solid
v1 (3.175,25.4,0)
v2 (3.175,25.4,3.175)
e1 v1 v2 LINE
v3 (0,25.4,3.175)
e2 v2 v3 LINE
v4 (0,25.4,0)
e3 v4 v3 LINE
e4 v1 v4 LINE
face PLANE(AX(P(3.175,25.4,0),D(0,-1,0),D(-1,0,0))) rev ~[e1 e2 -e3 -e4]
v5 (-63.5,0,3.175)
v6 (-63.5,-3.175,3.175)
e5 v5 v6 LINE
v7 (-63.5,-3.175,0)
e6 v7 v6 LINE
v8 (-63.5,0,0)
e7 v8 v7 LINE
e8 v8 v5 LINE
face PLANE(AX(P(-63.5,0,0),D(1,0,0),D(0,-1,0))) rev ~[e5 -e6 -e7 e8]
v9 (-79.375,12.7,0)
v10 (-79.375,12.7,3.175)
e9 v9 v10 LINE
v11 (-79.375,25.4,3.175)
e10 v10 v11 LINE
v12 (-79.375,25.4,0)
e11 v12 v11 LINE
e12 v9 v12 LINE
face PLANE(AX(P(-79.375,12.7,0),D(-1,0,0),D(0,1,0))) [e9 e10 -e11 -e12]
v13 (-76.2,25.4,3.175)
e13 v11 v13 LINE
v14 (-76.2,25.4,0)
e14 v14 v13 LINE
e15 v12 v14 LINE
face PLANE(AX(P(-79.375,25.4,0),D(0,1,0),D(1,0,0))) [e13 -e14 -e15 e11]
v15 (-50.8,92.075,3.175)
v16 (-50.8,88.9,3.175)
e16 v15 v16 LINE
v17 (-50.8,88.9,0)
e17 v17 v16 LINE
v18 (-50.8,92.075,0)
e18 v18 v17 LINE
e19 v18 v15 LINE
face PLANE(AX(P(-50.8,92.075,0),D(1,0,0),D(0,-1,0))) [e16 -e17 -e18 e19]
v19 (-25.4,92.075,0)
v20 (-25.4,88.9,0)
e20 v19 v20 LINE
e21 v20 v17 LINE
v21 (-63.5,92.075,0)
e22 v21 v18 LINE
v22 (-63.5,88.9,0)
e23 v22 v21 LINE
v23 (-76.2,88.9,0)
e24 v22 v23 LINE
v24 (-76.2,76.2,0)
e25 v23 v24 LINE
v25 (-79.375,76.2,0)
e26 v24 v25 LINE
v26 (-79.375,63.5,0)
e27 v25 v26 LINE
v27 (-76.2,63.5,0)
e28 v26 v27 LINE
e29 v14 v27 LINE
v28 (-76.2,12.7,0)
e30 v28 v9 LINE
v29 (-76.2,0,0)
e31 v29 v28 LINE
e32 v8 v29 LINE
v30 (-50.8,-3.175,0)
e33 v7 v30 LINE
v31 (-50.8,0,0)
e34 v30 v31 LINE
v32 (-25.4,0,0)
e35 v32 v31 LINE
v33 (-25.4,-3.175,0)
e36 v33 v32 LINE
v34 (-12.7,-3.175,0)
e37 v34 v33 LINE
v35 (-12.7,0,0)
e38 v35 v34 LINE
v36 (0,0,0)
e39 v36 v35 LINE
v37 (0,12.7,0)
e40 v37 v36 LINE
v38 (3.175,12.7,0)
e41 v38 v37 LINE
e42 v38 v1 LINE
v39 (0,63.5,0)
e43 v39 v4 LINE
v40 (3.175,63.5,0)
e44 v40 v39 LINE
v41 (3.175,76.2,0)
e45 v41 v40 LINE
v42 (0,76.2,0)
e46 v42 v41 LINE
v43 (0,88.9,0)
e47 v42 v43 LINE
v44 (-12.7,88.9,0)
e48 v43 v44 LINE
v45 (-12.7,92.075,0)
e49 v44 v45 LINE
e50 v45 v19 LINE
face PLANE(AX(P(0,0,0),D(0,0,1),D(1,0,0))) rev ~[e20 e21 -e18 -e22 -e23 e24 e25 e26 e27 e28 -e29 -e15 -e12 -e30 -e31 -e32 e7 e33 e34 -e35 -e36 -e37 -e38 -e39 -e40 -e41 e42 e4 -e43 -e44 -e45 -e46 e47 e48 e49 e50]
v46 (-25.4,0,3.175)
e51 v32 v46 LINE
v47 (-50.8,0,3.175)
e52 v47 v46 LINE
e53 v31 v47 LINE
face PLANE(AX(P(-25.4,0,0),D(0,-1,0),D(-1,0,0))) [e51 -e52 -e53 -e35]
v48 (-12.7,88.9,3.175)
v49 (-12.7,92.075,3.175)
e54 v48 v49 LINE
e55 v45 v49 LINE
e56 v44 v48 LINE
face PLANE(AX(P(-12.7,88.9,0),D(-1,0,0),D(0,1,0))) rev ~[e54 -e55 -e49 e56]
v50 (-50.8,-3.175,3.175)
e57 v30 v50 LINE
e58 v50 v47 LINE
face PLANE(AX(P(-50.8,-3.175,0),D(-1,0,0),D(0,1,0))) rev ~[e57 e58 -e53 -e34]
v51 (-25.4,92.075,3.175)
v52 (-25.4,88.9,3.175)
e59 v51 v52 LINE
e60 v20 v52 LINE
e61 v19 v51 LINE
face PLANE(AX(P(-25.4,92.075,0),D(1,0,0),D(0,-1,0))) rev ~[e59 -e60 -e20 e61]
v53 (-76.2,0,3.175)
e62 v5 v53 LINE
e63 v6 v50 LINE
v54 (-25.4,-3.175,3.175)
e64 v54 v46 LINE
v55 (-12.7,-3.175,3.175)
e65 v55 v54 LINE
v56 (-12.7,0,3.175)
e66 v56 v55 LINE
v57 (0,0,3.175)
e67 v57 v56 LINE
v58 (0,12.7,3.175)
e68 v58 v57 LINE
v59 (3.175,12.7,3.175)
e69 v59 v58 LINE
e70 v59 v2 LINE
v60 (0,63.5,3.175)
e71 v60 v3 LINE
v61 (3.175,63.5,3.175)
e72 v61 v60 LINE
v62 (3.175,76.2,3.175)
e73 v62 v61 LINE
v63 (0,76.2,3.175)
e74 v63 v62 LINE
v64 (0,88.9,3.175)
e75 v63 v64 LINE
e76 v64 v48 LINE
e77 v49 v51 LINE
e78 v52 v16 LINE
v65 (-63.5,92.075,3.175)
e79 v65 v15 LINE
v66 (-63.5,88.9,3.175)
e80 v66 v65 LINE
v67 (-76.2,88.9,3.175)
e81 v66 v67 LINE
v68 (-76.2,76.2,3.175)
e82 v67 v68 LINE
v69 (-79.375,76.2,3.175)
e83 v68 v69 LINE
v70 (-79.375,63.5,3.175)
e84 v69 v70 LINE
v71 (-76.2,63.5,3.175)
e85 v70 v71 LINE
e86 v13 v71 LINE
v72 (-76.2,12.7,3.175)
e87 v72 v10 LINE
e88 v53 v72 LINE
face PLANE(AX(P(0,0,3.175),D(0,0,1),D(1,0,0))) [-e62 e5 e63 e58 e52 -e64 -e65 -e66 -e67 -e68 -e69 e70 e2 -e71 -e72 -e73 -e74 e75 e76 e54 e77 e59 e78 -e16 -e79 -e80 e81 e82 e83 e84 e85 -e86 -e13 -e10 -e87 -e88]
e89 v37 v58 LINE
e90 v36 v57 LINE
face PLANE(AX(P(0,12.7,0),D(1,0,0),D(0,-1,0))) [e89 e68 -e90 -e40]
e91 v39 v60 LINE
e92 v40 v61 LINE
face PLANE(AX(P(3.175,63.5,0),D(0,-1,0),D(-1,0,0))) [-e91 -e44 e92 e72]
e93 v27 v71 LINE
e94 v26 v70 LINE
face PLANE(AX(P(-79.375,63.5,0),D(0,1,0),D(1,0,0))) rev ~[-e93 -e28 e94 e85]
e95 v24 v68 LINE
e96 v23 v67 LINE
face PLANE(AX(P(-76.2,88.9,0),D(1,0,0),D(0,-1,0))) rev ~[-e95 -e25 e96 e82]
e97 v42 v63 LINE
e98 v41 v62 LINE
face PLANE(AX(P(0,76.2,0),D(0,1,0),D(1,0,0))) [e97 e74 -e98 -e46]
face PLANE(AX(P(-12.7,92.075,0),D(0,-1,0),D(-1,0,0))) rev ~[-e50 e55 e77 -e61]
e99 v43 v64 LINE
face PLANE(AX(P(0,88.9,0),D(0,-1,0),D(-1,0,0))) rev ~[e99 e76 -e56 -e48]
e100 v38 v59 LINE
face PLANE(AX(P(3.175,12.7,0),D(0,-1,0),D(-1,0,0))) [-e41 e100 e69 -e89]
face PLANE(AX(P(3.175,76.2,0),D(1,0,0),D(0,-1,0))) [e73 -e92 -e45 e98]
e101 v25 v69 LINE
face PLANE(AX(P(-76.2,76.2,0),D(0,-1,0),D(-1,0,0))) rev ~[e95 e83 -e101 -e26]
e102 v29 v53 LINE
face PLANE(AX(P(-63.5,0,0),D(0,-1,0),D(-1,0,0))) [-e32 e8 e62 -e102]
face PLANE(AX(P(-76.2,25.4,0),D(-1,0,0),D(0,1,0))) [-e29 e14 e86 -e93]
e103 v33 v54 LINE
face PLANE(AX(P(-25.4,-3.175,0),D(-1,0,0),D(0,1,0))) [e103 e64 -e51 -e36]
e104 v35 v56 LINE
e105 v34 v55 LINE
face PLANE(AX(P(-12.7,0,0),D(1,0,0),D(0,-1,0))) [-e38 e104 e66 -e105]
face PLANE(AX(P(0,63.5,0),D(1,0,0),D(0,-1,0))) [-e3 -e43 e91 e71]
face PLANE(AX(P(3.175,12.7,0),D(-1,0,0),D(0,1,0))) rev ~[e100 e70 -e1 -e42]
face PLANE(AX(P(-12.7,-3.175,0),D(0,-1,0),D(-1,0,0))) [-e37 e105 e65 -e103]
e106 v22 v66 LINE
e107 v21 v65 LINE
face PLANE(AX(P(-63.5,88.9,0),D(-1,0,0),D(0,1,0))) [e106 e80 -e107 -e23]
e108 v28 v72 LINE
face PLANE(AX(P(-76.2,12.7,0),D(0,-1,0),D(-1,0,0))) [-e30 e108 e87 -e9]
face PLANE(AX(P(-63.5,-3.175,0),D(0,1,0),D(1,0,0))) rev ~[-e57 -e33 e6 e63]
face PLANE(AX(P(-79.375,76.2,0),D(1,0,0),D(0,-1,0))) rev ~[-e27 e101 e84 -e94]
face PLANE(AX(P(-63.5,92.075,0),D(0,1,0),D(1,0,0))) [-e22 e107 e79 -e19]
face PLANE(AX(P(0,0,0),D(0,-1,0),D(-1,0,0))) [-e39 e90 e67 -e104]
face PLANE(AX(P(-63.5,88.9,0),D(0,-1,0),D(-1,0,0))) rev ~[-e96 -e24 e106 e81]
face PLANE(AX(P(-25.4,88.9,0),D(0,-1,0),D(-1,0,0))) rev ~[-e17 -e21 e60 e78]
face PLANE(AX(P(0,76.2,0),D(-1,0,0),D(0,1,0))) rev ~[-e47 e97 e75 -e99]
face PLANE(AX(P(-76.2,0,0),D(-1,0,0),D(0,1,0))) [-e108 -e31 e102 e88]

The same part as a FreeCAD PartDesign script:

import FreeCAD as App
import Part
import Sketcher

V = App.Vector
Q = App.Units.Quantity


def add_polygon(sketch, points):
    """Adds a closed chain of lines whose ends are joined by coincident constraints."""
    first, n = sketch.GeometryCount, len(points)
    for a, b in zip(points, points[1:] + points[:1]):
        sketch.addGeometry(Part.LineSegment(App.Vector(*a, 0), App.Vector(*b, 0)), False)
    for i in range(n):
        sketch.addConstraint(Sketcher.Constraint("Coincident", first + i, 2, first + (i + 1) % n, 1))

doc = App.newDocument("Part")
params = doc.addObject("Spreadsheet::Sheet", "Params")
for row, (alias, value) in enumerate([
    ("sketch1_width", "0.5 in"),
    ("sketch1_width2", "0.125 in"),
    ("pad1_length", "0.125 in"),
], start=1):
    params.set(f"A{row}", alias)
    params.set(f"B{row}", "=" + value)
    params.setAlias(f"B{row}", alias)

body = doc.addObject("PartDesign::Body", "Body")

sketch1 = body.newObject("Sketcher::SketchObject", "Sketch")
sketch1.AttachmentSupport = (doc.getObject("XY_Plane"), [""])
sketch1.MapMode = "FlatFace"
add_polygon(sketch1, [(-12.7, 0), (0, 0), (0, 12.7), (3.175, 12.7), (3.175, 25.4), (0, 25.4), (0, 63.5), (3.175, 63.5), (3.175, 76.2), (0, 76.2), (0, 88.9), (-12.7, 88.9), (-12.7, 92.075), (-25.4, 92.075), (-25.4, 88.9), (-50.8, 88.9), (-50.8, 92.075), (-63.5, 92.075), (-63.5, 88.9), (-76.2, 88.9), (-76.2, 76.2), (-79.375, 76.2), (-79.375, 63.5), (-76.2, 63.5), (-76.2, 25.4), (-79.375, 25.4), (-79.375, 12.7), (-76.2, 12.7), (-76.2, 0), (-63.5, 0), (-63.5, -3.175), (-50.8, -3.175), (-50.8, 0), (-25.4, 0), (-25.4, -3.175), (-12.7, -3.175)])
sketch1.addConstraint([
    Sketcher.Constraint("Horizontal", 0),
    Sketcher.Constraint("Vertical", 1),
    Sketcher.Constraint("Horizontal", 2),
    Sketcher.Constraint("Vertical", 3),
    Sketcher.Constraint("Horizontal", 4),
    Sketcher.Constraint("Vertical", 5),
    Sketcher.Constraint("Horizontal", 6),
    Sketcher.Constraint("Vertical", 7),
    Sketcher.Constraint("Horizontal", 8),
    Sketcher.Constraint("Vertical", 9),
    Sketcher.Constraint("Horizontal", 10),
    Sketcher.Constraint("Vertical", 11),
    Sketcher.Constraint("Horizontal", 12),
    Sketcher.Constraint("Vertical", 13),
    Sketcher.Constraint("Horizontal", 14),
    Sketcher.Constraint("Vertical", 15),
    Sketcher.Constraint("Horizontal", 16),
    Sketcher.Constraint("Vertical", 17),
    Sketcher.Constraint("Horizontal", 18),
    Sketcher.Constraint("Vertical", 19),
    Sketcher.Constraint("Horizontal", 20),
    Sketcher.Constraint("Vertical", 21),
    Sketcher.Constraint("Horizontal", 22),
    Sketcher.Constraint("Vertical", 23),
    Sketcher.Constraint("Horizontal", 24),
    Sketcher.Constraint("Vertical", 25),
    Sketcher.Constraint("Horizontal", 26),
    Sketcher.Constraint("Vertical", 27),
    Sketcher.Constraint("Horizontal", 28),
    Sketcher.Constraint("Vertical", 29),
    Sketcher.Constraint("Horizontal", 30),
    Sketcher.Constraint("Vertical", 31),
    Sketcher.Constraint("Horizontal", 32),
    Sketcher.Constraint("Vertical", 33),
    Sketcher.Constraint("Horizontal", 34),
    Sketcher.Constraint("Vertical", 35),
    Sketcher.Constraint("Coincident", 0, 2, -1, 1),
    Sketcher.Constraint("PointOnObject", 4, 2, -2),
    Sketcher.Constraint("PointOnObject", 8, 2, -2),
    Sketcher.Constraint("PointOnObject", 27, 2, -1),
    Sketcher.Constraint("PointOnObject", 31, 2, -1),
    Sketcher.Constraint("Horizontal", 10, 2, 13, 2),
    Sketcher.Constraint("Horizontal", 12, 2, 15, 2),
    Sketcher.Constraint("Horizontal", 14, 2, 17, 2),
    Sketcher.Constraint("Horizontal", 8, 2, 19, 2),
    Sketcher.Constraint("Horizontal", 6, 2, 21, 2),
    Sketcher.Constraint("Horizontal", 4, 2, 23, 2),
    Sketcher.Constraint("Horizontal", 2, 2, 25, 2),
    Sketcher.Constraint("Horizontal", 30, 2, 33, 2),
    Sketcher.Constraint("Vertical", 3, 2, 6, 2),
    Sketcher.Constraint("Vertical", 19, 2, 22, 2),
    Sketcher.Constraint("Vertical", 21, 2, 24, 2),
    Sketcher.Constraint("Vertical", 23, 2, 26, 2),
    Sketcher.Constraint("Vertical", 17, 2, 28, 2),
    Sketcher.Constraint("Vertical", 15, 2, 30, 2),
    Sketcher.Constraint("Vertical", 13, 2, 32, 2),
    Sketcher.Constraint("Vertical", 11, 2, 34, 2),
    Sketcher.Constraint("Equal", 10, 12),
    Sketcher.Constraint("Equal", 12, 16),
    Sketcher.Constraint("Equal", 16, 18),
    Sketcher.Constraint("Equal", 8, 20),
    Sketcher.Constraint("Equal", 34, 1),
    Sketcher.Constraint("Equal", 1, 3),
    Sketcher.Constraint("Equal", 3, 7),
    Sketcher.Constraint("Equal", 7, 9),
    Sketcher.Constraint("Equal", 26, 11),
    Sketcher.Constraint("Equal", 17, 29),
    Sketcher.Constraint("DistanceX", 0, 1, 0, 2, Q("0.5 in")),
    Sketcher.Constraint("DistanceY", -1, 1, 7, 2, Q("3 in")),
    Sketcher.Constraint("DistanceX", 18, 2, -1, 1, Q("3 in")),
    Sketcher.Constraint("DistanceX", 2, 1, 2, 2, Q("0.125 in")),
])
sketch1.setExpression("Constraints[103]", "Params.sketch1_width")
sketch1.setExpression("Constraints[106]", "Params.sketch1_width2")
pad1 = body.newObject("PartDesign::Pad", "Pad")
pad1.Profile = sketch1
pad1.setExpression("Length", "Params.pad1_length")

doc.recompute()
